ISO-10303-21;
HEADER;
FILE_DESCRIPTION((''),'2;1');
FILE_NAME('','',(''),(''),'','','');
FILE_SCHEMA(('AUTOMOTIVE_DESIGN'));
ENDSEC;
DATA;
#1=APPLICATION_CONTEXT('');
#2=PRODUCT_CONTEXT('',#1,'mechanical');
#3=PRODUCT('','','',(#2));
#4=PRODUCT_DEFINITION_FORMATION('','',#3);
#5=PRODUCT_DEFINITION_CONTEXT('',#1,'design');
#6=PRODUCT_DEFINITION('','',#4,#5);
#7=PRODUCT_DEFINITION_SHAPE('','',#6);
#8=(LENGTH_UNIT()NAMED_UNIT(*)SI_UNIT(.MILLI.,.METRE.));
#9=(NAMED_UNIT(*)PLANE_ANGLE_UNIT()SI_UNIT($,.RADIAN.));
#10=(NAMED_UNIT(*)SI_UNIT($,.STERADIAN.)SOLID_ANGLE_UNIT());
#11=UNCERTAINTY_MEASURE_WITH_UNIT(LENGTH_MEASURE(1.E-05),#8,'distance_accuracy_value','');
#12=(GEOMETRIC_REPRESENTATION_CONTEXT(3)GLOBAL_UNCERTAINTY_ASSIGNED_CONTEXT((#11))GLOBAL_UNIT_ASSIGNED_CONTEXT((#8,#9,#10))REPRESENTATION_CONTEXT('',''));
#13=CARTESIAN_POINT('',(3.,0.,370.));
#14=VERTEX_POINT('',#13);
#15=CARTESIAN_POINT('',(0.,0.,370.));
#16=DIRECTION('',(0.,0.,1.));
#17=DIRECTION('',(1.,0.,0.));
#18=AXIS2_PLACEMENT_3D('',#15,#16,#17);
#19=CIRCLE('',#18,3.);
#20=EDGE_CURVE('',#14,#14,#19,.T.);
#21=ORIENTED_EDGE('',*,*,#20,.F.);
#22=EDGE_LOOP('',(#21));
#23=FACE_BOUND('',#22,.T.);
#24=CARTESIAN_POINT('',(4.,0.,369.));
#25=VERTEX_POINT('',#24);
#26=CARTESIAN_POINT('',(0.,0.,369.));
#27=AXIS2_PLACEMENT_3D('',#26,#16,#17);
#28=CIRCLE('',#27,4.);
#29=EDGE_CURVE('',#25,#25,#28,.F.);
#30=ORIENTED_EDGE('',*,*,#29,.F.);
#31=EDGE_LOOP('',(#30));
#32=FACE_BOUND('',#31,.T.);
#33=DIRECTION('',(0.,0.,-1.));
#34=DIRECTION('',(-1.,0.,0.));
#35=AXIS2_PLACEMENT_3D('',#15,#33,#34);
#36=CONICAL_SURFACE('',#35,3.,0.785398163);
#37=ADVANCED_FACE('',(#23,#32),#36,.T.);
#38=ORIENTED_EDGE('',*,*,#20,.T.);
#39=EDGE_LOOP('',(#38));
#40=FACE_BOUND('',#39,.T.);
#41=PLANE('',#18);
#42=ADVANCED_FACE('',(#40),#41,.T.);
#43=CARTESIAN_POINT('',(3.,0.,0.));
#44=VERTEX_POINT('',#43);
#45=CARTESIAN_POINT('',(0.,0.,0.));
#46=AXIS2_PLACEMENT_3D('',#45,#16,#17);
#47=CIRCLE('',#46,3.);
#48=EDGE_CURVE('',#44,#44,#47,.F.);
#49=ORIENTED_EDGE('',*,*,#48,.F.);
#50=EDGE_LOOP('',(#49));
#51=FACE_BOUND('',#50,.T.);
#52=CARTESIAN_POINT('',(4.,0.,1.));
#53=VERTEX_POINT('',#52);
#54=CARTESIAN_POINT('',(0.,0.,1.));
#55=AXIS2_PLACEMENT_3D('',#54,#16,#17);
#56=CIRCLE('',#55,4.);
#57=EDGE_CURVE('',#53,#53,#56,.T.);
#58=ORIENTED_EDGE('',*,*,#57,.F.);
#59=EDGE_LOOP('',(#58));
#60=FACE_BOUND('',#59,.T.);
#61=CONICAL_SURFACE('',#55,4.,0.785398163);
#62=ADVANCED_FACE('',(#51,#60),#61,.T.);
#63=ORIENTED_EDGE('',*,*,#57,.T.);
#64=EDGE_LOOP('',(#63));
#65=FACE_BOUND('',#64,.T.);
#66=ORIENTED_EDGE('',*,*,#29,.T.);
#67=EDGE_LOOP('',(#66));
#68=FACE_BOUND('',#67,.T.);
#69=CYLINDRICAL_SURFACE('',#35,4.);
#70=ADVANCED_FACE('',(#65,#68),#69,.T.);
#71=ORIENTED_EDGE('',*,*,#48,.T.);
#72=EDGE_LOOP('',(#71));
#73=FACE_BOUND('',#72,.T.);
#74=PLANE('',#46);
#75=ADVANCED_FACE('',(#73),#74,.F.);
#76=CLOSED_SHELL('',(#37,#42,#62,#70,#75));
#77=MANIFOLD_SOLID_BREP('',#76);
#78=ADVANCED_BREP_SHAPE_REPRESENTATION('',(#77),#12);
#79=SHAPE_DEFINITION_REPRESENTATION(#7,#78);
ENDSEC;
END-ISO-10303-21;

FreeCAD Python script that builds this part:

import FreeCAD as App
import Part
import Sketcher
from FreeCAD import Vector


def edges_at(feature, points):
    """Names of the edges that pass closest to the given points."""
    edges = feature.Shape.Edges
    near = lambda p: min(range(len(edges)), key=lambda i: edges[i].distToShape(Part.Vertex(*p))[0])
    return sorted({f"Edge{near(p) + 1}" for p in points})

doc = App.newDocument("Part")
params = doc.addObject("Spreadsheet::Sheet", "Params")
for row, (alias, value) in enumerate([
    ("sketch1_diameter", "8 mm"),
    ("pad1_length", "370 mm"),
    ("chamfer_size", "1 mm"),
], start=1):
    params.set(f"A{row}", alias)
    params.set(f"B{row}", "=" + value)
    params.setAlias(f"B{row}", alias)

body = doc.addObject("PartDesign::Body", "Body")

sketch1 = doc.addObject("Sketcher::SketchObject", "Sketch")
body.addObject(sketch1)
sketch1.AttachmentSupport = (doc.XY_Plane, [""])
sketch1.MapMode = "FlatFace"
sketch1.addGeometry(Part.Circle(Vector(0, 0, 0), Vector(0, 0, 1), 4), False)
sketch1.addConstraint(Sketcher.Constraint("Coincident", 0, 3, -1, 1))
sketch1.addConstraint(Sketcher.Constraint("Diameter", 0, 8.0))
sketch1.setExpression("Constraints[1]", "Params.sketch1_diameter")
pad1 = doc.addObject("PartDesign::Pad", "Pad")
body.addObject(pad1)
pad1.Profile = sketch1
pad1.setExpression("Length", "Params.pad1_length")
doc.recompute()

chamfer = doc.addObject("PartDesign::Chamfer", "Chamfer")
body.addObject(chamfer)
chamfer.Base = (pad1, edges_at(pad1, [(-4, 0, 0), (-4, 0, 370)]))
chamfer.setExpression("Size", "Params.chamfer_size")

doc.recompute()
